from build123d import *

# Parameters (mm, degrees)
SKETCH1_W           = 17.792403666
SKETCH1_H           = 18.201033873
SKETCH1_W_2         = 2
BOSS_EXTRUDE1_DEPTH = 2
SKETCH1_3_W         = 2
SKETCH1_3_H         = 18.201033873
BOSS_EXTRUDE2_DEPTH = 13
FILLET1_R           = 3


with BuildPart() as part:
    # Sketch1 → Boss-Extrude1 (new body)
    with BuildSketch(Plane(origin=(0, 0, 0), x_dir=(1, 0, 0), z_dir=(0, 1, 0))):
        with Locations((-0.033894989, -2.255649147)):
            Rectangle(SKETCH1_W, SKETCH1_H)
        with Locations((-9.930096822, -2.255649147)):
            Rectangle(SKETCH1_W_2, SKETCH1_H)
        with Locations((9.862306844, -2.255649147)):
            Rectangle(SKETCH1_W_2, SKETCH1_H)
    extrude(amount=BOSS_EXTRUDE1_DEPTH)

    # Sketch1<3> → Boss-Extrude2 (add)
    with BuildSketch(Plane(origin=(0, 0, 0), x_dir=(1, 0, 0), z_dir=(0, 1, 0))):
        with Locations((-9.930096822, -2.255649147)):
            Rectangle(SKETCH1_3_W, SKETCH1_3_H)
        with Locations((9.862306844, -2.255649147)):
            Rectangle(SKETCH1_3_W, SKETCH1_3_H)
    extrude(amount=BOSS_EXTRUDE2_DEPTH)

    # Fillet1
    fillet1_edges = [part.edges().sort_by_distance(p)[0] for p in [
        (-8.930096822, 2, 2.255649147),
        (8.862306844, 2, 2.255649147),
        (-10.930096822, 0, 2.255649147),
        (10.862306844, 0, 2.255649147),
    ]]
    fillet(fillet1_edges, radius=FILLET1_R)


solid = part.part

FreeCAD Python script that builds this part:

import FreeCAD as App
import Part
import Sketcher
from FreeCAD import Vector
Q = App.Units.Quantity


def edges_at(feature, points):
    """Names of the edges that pass closest to the given points."""
    edges = feature.Shape.Edges
    near = lambda p: min(range(len(edges)), key=lambda i: edges[i].distToShape(Part.Vertex(*p))[0])
    return sorted({f"Edge{near(p) + 1}" for p in points})

doc = App.newDocument("Part")
params = doc.addObject("Spreadsheet::Sheet", "Params")
for row, (alias, value) in enumerate([
    ("pad1_length", "2 mm"),
    ("sketch2_width", "2 mm"),
    ("pad2_length", "13 mm"),
    ("fillet_radius", "3 mm"),
], start=1):
    params.set(f"A{row}", alias)
    params.set(f"B{row}", "=" + value)
    params.setAlias(f"B{row}", alias)

body = doc.addObject("PartDesign::Body", "Body")

sketch1 = body.newObject("Sketcher::SketchObject", "Sketch")
sketch1.AttachmentSupport = (doc.getObject("XZ_Plane"), [""])
sketch1.MapMode = "FlatFace"
sketch1.addGeometry([
    Part.LineSegment(Vector(-10.930097, -6.844868, 0), Vector(-10.930097, 11.356166, 0)),
    Part.LineSegment(Vector(-10.930097, 11.356166, 0), Vector(10.862307, 11.356166, 0)),
    Part.LineSegment(Vector(10.862307, 11.356166, 0), Vector(10.862307, -6.844868, 0)),
    Part.LineSegment(Vector(10.862307, -6.844868, 0), Vector(-10.930097, -6.844868, 0)),
], False)
sketch1.addConstraint([
    Sketcher.Constraint("Coincident", 0, 2, 1, 1),
    Sketcher.Constraint("Coincident", 1, 2, 2, 1),
    Sketcher.Constraint("Coincident", 2, 2, 3, 1),
    Sketcher.Constraint("Coincident", 3, 2, 0, 1),
    Sketcher.Constraint("Vertical", 0),
    Sketcher.Constraint("Horizontal", 1),
    Sketcher.Constraint("Vertical", 2),
    Sketcher.Constraint("Horizontal", 3),
    Sketcher.Constraint("DistanceX", 1, 1, 1, 2, Q("21.792404 mm")),
    Sketcher.Constraint("DistanceY", 0, 1, 0, 2, Q("18.201034 mm")),
    Sketcher.Constraint("DistanceX", 0, 2, -1, 1, Q("10.930097 mm")),
    Sketcher.Constraint("DistanceY", -1, 1, 0, 2, Q("11.356166 mm")),
])
pad1 = body.newObject("PartDesign::Pad", "Pad")
pad1.Profile = sketch1
pad1.setExpression("Length", "Params.pad1_length")
pad1.Reversed = True

sketch2 = body.newObject("Sketcher::SketchObject", "Sketch001")
sketch2.AttachmentSupport = (doc.getObject("XZ_Plane"), [""])
sketch2.MapMode = "FlatFace"
sketch2.addGeometry([
    Part.LineSegment(Vector(-10.930097, -6.844868, 0), Vector(-10.930097, 11.356166, 0)),
    Part.LineSegment(Vector(-10.930097, 11.356166, 0), Vector(-8.930097, 11.356166, 0)),
    Part.LineSegment(Vector(-8.930097, 11.356166, 0), Vector(-8.930097, -6.844868, 0)),
    Part.LineSegment(Vector(-8.930097, -6.844868, 0), Vector(-10.930097, -6.844868, 0)),
    Part.LineSegment(Vector(8.862307, -6.844868, 0), Vector(8.862307, 11.356166, 0)),
    Part.LineSegment(Vector(8.862307, 11.356166, 0), Vector(10.862307, 11.356166, 0)),
    Part.LineSegment(Vector(10.862307, 11.356166, 0), Vector(10.862307, -6.844868, 0)),
    Part.LineSegment(Vector(10.862307, -6.844868, 0), Vector(8.862307, -6.844868, 0)),
], False)
sketch2.addConstraint([
    Sketcher.Constraint("Coincident", 0, 2, 1, 1),
    Sketcher.Constraint("Coincident", 1, 2, 2, 1),
    Sketcher.Constraint("Coincident", 2, 2, 3, 1),
    Sketcher.Constraint("Coincident", 3, 2, 0, 1),
    Sketcher.Constraint("Coincident", 4, 2, 5, 1),
    Sketcher.Constraint("Coincident", 5, 2, 6, 1),
    Sketcher.Constraint("Coincident", 6, 2, 7, 1),
    Sketcher.Constraint("Coincident", 7, 2, 4, 1),
    Sketcher.Constraint("Vertical", 0),
    Sketcher.Constraint("Horizontal", 1),
    Sketcher.Constraint("Vertical", 2),
    Sketcher.Constraint("Horizontal", 3),
    Sketcher.Constraint("Vertical", 4),
    Sketcher.Constraint("Horizontal", 5),
    Sketcher.Constraint("Vertical", 6),
    Sketcher.Constraint("Horizontal", 7),
    Sketcher.Constraint("Horizontal", 1, 2, 4, 2),
    Sketcher.Constraint("Horizontal", 3, 2, 6, 2),
    Sketcher.Constraint("Equal", 3, 5),
    Sketcher.Constraint("DistanceX", 1, 1, 1, 2, Q("2 mm")),
    Sketcher.Constraint("DistanceY", 0, 1, 0, 2, Q("18.201034 mm")),
    Sketcher.Constraint("DistanceX", 0, 2, -1, 1, Q("10.930097 mm")),
    Sketcher.Constraint("DistanceY", -1, 1, 0, 2, Q("11.356166 mm")),
    Sketcher.Constraint("DistanceX", -1, 1, 4, 2, Q("8.862307 mm")),
])
sketch2.setExpression("Constraints[19]", "Params.sketch2_width")
pad2 = body.newObject("PartDesign::Pad", "Pad001")
pad2.Profile = sketch2
pad2.setExpression("Length", "Params.pad2_length")
pad2.Reversed = True
doc.recompute()

fillet = body.newObject("PartDesign::Fillet", "Fillet")
fillet.Base = (pad2, edges_at(pad2, [
    (-8.93, 2, 2.256),
    (8.862, 2, 2.256),
    (-10.93, 0, 2.256),
    (10.862, 0, 2.256),
]))
fillet.setExpression("Radius", "Params.fillet_radius")

doc.recompute()
